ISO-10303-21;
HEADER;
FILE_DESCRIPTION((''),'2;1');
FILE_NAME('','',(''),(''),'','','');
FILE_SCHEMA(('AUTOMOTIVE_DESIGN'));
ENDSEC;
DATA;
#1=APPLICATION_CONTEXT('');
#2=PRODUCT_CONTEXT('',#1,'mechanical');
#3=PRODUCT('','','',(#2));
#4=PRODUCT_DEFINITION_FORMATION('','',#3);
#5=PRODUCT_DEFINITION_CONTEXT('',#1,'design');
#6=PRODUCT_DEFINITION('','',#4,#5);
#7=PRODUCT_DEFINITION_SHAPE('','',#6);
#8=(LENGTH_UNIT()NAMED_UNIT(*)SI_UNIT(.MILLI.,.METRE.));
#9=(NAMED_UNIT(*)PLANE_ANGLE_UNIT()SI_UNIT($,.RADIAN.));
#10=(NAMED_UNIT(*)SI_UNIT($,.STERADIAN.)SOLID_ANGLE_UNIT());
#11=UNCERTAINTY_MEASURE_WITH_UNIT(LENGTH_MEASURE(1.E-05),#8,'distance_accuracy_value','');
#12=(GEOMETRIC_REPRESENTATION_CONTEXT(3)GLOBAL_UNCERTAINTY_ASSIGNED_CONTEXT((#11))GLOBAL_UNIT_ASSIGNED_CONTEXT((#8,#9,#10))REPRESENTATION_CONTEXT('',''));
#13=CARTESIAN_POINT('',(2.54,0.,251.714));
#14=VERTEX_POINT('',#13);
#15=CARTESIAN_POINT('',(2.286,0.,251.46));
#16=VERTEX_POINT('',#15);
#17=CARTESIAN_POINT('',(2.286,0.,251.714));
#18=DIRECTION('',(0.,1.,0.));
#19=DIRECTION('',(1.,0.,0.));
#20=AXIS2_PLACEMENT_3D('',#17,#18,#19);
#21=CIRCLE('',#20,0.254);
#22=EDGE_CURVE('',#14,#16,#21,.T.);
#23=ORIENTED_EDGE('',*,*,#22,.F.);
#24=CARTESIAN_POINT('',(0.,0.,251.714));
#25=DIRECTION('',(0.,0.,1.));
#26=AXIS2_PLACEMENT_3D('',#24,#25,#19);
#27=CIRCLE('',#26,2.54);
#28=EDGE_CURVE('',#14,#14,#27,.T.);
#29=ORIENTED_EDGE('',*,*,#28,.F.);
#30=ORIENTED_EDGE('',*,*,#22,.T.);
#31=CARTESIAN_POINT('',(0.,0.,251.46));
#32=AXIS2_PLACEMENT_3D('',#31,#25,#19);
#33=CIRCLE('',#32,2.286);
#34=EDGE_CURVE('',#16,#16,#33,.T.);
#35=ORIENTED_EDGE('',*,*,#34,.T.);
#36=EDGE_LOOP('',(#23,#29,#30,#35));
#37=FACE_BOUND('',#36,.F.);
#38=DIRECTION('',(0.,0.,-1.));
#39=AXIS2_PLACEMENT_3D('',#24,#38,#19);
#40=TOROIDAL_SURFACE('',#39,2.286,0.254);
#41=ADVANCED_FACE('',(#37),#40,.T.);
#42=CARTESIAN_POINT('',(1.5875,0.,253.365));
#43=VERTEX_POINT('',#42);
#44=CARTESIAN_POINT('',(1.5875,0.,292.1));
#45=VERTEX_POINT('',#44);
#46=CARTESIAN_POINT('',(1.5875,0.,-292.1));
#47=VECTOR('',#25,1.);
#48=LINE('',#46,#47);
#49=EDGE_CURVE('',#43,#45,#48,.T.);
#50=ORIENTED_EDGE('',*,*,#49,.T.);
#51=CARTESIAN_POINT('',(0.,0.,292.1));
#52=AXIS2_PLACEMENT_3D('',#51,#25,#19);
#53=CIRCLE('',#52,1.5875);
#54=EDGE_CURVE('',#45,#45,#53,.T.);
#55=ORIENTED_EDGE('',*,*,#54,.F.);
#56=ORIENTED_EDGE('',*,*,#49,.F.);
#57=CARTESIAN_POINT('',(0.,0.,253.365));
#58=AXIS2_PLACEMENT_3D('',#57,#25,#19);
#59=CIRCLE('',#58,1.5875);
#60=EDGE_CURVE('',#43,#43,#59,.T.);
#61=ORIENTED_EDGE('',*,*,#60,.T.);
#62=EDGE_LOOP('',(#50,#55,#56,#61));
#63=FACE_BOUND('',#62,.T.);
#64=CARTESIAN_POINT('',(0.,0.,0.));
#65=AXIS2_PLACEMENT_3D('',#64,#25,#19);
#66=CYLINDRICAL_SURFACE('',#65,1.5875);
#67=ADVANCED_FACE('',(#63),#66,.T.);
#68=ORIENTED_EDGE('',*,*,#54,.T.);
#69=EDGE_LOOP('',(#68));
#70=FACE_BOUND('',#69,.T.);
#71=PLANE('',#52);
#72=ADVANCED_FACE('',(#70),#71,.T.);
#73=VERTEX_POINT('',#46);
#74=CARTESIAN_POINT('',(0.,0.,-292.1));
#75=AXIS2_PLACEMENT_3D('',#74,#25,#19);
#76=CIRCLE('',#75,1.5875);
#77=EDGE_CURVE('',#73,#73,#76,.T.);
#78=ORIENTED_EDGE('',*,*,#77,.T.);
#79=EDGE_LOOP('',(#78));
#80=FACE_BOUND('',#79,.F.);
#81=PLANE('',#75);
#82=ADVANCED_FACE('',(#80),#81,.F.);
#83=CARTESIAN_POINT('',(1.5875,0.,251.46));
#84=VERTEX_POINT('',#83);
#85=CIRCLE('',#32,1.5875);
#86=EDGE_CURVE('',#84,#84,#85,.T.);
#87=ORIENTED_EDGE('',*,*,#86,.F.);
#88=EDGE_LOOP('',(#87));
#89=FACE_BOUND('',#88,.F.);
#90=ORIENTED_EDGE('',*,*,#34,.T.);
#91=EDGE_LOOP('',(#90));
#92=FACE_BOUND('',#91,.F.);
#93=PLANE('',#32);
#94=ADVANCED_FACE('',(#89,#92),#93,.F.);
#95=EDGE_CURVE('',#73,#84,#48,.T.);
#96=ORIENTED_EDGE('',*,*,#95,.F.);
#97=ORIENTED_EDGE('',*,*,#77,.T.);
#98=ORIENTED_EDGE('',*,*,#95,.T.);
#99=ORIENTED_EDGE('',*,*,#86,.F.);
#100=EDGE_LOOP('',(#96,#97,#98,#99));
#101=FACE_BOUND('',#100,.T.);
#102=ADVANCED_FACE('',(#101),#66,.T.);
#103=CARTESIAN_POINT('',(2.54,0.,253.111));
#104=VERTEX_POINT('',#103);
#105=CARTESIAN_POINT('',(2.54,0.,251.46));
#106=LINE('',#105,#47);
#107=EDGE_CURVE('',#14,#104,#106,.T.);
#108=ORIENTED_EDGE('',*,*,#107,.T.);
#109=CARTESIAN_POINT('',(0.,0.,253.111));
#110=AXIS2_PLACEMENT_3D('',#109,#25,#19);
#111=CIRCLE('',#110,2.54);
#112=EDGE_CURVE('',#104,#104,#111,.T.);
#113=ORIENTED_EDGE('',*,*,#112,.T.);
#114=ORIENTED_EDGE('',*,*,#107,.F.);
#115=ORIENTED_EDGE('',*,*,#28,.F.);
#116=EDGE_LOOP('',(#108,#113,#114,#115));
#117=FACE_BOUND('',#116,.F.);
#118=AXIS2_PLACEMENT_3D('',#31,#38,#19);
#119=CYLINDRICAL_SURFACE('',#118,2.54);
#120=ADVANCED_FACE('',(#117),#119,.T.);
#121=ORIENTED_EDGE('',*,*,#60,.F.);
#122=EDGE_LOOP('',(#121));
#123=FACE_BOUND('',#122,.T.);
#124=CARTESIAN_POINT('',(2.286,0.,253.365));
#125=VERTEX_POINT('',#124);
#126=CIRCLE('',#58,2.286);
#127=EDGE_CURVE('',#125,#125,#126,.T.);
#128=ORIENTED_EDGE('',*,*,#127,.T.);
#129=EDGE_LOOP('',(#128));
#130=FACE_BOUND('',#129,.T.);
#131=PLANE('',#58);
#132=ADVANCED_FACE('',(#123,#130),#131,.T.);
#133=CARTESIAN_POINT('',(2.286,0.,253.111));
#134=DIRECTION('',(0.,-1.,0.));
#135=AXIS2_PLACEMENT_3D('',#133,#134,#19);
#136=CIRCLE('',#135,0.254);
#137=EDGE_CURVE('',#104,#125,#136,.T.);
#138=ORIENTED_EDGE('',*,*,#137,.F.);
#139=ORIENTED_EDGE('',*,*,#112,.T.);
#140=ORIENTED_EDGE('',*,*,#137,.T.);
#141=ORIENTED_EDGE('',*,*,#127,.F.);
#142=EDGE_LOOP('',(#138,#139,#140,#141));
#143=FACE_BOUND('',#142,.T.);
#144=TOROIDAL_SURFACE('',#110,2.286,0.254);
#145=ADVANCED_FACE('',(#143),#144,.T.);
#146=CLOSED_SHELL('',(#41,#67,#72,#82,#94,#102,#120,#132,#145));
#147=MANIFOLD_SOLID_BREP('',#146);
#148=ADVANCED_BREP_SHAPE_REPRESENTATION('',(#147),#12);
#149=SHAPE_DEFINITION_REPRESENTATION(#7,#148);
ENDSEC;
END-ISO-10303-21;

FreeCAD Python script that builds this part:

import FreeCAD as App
import Part
import Sketcher
Q = App.Units.Quantity


def edges_at(feature, points):
    """Names of the edges that pass closest to the given points."""
    edges = feature.Shape.Edges
    near = lambda p: min(range(len(edges)), key=lambda i: edges[i].distToShape(Part.Vertex(*p))[0])
    return sorted({f"Edge{near(p) + 1}" for p in points})

doc = App.newDocument("Part")
body = doc.addObject("PartDesign::Body", "Body")

# Sketch on XY plane
sketch1 = body.newObject("Sketcher::SketchObject", "Sketch")
sketch1.AttachmentSupport = (doc.getObject("XY_Plane"), [""])
sketch1.MapMode = "FlatFace"
sketch1.addGeometry(Part.Circle(App.Vector(0, 0, 0), App.Vector(0, 0, 1), 1.6), False)
sketch1.addConstraint(Sketcher.Constraint("Coincident", 0, 3, -1, 1))
sketch1.addConstraint(Sketcher.Constraint("Diameter", 0, Q("0.125 in")))
pad1 = body.newObject("PartDesign::Pad", "Pad")
pad1.Profile = sketch1
pad1.Length = Q("23 in")
pad1.Midplane = True

# Sketch on XY plane
sketch2 = body.newObject("Sketcher::SketchObject", "Sketch001")
sketch2.AttachmentSupport = (doc.getObject("XY_Plane"), [""])
sketch2.MapMode = "FlatFace"
sketch2.AttachmentOffset = App.Placement(App.Vector(0, 0, 9.9 * 25.4), App.Rotation())
sketch2.addGeometry(Part.Circle(App.Vector(0, 0, 0), App.Vector(0, 0, 1), 2.5), False)
sketch2.addConstraint(Sketcher.Constraint("Coincident", 0, 3, -1, 1))
sketch2.addConstraint(Sketcher.Constraint("Diameter", 0, Q("0.2 in")))
pad2 = body.newObject("PartDesign::Pad", "Pad001")
pad2.Profile = sketch2
pad2.Length = Q("0.075 in")
doc.recompute()

fillet = body.newObject("PartDesign::Fillet", "Fillet")
fillet.Base = (pad2, edges_at(pad2, [(-2.54, 0, 253.365), (-2.54, 0, 251.46)]))
fillet.Radius = Q("0.01 in")

doc.recompute()
